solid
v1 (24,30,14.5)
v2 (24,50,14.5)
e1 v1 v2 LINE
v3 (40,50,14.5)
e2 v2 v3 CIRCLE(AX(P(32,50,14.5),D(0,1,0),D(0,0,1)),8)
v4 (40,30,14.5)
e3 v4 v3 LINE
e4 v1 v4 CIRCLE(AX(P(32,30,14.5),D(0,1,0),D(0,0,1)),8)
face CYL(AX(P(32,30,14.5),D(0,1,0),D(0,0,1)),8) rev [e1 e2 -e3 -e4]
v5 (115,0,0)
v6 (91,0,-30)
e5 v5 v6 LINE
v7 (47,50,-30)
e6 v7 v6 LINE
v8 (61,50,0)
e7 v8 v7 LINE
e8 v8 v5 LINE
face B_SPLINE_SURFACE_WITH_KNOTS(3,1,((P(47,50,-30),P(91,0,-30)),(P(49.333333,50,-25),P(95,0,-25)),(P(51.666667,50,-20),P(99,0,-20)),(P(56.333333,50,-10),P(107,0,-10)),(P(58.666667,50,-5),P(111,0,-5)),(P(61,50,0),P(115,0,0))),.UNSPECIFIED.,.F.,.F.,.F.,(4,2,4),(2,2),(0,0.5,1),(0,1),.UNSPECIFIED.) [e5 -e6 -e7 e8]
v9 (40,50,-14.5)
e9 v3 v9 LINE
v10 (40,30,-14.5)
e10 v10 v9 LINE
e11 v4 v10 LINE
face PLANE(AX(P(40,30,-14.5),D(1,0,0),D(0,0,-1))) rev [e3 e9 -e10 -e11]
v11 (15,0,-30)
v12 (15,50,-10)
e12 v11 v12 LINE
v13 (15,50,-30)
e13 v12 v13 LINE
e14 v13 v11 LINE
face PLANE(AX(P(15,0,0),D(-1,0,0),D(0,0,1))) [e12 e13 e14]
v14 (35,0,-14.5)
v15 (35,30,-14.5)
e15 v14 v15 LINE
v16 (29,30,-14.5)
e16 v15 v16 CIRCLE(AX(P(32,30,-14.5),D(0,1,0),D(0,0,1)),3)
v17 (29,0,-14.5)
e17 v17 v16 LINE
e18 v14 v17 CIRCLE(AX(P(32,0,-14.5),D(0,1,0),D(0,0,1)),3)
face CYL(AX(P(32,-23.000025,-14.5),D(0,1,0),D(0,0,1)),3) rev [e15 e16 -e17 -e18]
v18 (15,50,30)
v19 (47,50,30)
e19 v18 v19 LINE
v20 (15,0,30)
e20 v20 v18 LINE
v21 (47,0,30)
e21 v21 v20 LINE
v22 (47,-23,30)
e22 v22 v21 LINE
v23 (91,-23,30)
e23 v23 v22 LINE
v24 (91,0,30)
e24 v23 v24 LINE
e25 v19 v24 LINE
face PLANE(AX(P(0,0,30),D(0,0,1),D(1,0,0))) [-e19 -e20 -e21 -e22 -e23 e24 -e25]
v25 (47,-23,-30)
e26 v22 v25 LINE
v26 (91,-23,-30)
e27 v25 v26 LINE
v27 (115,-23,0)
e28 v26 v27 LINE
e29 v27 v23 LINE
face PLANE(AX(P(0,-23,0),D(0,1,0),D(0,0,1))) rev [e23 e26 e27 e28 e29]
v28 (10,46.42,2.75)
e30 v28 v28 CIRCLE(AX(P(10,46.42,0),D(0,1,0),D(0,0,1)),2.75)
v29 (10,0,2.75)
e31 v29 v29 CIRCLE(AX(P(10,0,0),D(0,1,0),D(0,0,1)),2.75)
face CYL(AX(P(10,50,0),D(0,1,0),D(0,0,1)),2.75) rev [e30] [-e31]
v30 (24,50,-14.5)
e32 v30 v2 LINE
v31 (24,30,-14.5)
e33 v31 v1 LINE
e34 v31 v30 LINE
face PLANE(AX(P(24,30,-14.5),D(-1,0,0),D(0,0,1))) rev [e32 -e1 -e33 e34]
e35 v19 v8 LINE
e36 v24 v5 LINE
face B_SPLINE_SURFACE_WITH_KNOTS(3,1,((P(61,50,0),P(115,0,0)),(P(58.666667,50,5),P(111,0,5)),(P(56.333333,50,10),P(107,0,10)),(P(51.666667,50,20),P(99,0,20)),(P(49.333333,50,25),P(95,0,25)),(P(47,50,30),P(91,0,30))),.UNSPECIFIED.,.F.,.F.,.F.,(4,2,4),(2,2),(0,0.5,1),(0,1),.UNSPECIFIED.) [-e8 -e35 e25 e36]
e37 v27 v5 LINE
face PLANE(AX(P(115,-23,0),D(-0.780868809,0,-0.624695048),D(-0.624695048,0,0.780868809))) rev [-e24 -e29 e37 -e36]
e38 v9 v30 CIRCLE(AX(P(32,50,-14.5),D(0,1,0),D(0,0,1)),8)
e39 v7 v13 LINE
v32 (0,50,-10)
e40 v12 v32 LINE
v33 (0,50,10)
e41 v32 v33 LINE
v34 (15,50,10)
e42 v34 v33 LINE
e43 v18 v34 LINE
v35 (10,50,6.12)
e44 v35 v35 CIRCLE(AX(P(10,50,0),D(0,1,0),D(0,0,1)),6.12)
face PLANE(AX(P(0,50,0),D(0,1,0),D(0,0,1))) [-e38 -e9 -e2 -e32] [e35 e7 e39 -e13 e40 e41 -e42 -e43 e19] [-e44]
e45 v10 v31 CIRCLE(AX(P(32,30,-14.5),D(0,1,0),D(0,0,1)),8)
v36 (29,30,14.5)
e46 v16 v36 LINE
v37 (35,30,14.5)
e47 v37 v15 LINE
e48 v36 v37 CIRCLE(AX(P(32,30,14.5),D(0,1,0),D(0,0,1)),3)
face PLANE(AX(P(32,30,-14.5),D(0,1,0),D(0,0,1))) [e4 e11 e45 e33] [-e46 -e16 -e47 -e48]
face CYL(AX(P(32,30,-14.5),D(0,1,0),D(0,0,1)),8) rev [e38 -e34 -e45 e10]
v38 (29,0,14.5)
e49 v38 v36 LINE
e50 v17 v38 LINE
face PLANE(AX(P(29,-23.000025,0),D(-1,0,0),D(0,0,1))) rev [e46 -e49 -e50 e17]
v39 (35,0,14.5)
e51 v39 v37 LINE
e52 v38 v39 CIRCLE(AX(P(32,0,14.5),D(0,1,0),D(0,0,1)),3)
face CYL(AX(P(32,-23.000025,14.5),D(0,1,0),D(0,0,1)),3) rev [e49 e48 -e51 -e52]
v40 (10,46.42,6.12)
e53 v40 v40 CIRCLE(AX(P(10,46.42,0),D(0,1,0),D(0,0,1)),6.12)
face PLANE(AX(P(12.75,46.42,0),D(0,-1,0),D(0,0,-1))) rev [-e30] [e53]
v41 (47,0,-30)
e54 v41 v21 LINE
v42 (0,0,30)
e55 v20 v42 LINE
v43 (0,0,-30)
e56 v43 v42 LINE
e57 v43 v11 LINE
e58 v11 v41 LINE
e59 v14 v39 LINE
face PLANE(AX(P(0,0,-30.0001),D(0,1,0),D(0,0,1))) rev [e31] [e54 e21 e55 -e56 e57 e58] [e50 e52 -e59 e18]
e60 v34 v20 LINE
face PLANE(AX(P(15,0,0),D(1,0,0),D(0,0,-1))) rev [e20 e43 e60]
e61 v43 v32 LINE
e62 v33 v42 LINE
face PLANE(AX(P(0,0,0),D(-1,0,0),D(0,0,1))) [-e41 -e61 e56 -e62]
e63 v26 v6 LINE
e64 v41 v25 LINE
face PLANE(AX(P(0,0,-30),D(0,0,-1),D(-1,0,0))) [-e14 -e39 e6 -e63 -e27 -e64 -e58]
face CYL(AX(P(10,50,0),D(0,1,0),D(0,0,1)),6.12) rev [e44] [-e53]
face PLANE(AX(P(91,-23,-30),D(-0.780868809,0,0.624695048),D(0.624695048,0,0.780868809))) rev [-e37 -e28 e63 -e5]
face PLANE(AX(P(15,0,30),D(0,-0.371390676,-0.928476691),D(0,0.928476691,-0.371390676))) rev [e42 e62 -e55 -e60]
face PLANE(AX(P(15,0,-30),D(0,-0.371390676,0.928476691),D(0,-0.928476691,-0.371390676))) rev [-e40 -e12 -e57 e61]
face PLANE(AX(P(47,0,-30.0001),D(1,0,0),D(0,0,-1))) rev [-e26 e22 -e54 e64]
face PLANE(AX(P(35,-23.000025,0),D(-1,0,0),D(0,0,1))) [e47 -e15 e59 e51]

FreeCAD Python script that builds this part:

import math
import FreeCAD as App
import Part
import Sketcher

V = App.Vector
Q = App.Units.Quantity


def add_polygon(sketch, points):
    """Adds a closed chain of lines whose ends are joined by coincident constraints."""
    first, n = sketch.GeometryCount, len(points)
    for a, b in zip(points, points[1:] + points[:1]):
        sketch.addGeometry(Part.LineSegment(App.Vector(*a, 0), App.Vector(*b, 0)), False)
    for i in range(n):
        sketch.addConstraint(Sketcher.Constraint("Coincident", first + i, 2, first + (i + 1) % n, 1))

doc = App.newDocument("Part")
body = doc.addObject("PartDesign::Body", "Body")

# Sketch on XZ plane
sketch1 = body.newObject("Sketcher::SketchObject", "Sketch")
sketch1.AttachmentSupport = (doc.getObject("XZ_Plane"), [""])
sketch1.MapMode = "FlatFace"
sketch1.AttachmentOffset = App.Placement(V(0, 0, -50), App.Rotation())
add_polygon(sketch1, [(0, -30), (0, 30), (47, 30), (61, 0), (47, -30)])  # lines 0-4
sketch1.addConstraint([
    Sketcher.Constraint("Vertical", 0),
    Sketcher.Constraint("Horizontal", 1),
    Sketcher.Constraint("Horizontal", 4),
    Sketcher.Constraint("Symmetric", 0, 2, 4, 2, -1, 1),
    Sketcher.Constraint("PointOnObject", 2, 2, -1),
    Sketcher.Constraint("Vertical", 1, 2, 3, 2),
    Sketcher.Constraint("DistanceX", 1, 1, 1, 2, Q("47 mm")),
    Sketcher.Constraint("DistanceY", 0, 1, 0, 2, Q("60 mm")),
    Sketcher.Constraint("DistanceX", -1, 1, 2, 2, Q("61 mm")),
])

# Sketch on XZ plane
sketch2 = body.newObject("Sketcher::SketchObject", "Sketch001")
sketch2.AttachmentSupport = (doc.getObject("XZ_Plane"), [""])
sketch2.MapMode = "FlatFace"
add_polygon(sketch2, [(0, -30), (0, 30), (91, 30), (115, 0), (91, -30)])  # lines 0-4
sketch2.addConstraint([
    Sketcher.Constraint("Vertical", 0),
    Sketcher.Constraint("Horizontal", 1),
    Sketcher.Constraint("Horizontal", 4),
    Sketcher.Constraint("Symmetric", 0, 2, 4, 2, -1, 1),
    Sketcher.Constraint("PointOnObject", 2, 2, -1),
    Sketcher.Constraint("Vertical", 1, 2, 3, 2),
    Sketcher.Constraint("DistanceX", 1, 1, 1, 2, Q("91 mm")),
    Sketcher.Constraint("DistanceY", 0, 1, 0, 2, Q("60 mm")),
    Sketcher.Constraint("DistanceX", -1, 1, 2, 2, Q("115 mm")),
])

additiveloft = body.newObject("PartDesign::AdditiveLoft", "AdditiveLoft")
additiveloft.Profile = sketch1
additiveloft.Sections = [sketch2]

# Sketch on XZ plane
sketch3 = body.newObject("Sketcher::SketchObject", "Sketch002")
sketch3.AttachmentSupport = (doc.getObject("XZ_Plane"), [""])
sketch3.MapMode = "FlatFace"
add_polygon(sketch3, [(91, 30), (0, 30), (0, -30), (91, -30), (115, 0)])  # lines 0-4
sketch3.addConstraint([
    Sketcher.Constraint("Horizontal", 0),
    Sketcher.Constraint("Vertical", 1),
    Sketcher.Constraint("Horizontal", 2),
    Sketcher.Constraint("Symmetric", 0, 2, 1, 2, -1, 1),
    Sketcher.Constraint("PointOnObject", 3, 2, -1),
    Sketcher.Constraint("Vertical", 2, 2, 4, 2),
    Sketcher.Constraint("DistanceX", 0, 2, 0, 1, Q("91 mm")),
    Sketcher.Constraint("DistanceY", 1, 2, 1, 1, Q("60 mm")),
    Sketcher.Constraint("DistanceX", -1, 1, 3, 2, Q("115 mm")),
])
pad1 = body.newObject("PartDesign::Pad", "Pad")
pad1.Profile = sketch3
pad1.Length = 23

# Sketch on XY plane
sketch4 = body.newObject("Sketcher::SketchObject", "Sketch003")
sketch4.AttachmentSupport = (doc.getObject("XY_Plane"), [""])
sketch4.MapMode = "FlatFace"
sketch4.AttachmentOffset = App.Placement(V(0, 0, 30), App.Rotation())
add_polygon(sketch4, [(0, 0), (0, -23), (47, -23), (47, 0)])  # lines 0-3
sketch4.addConstraint([
    Sketcher.Constraint("Vertical", 0),
    Sketcher.Constraint("Horizontal", 1),
    Sketcher.Constraint("Vertical", 2),
    Sketcher.Constraint("Horizontal", 3),
    Sketcher.Constraint("Coincident", 3, 2, -1, 1),
    Sketcher.Constraint("DistanceX", 1, 1, 1, 2, Q("47 mm")),
    Sketcher.Constraint("DistanceY", 0, 2, 0, 1, Q("23 mm")),
])
pocket1 = body.newObject("PartDesign::Pocket", "Pocket")
pocket1.Profile = sketch4
pocket1.Type = "ThroughAll"

# Sketch on YZ plane
sketch5 = body.newObject("Sketcher::SketchObject", "Sketch004")
sketch5.AttachmentSupport = (doc.getObject("YZ_Plane"), [""])
sketch5.MapMode = "FlatFace"
add_polygon(sketch5, [(50, 30), (50, 10), (0, 30)])  # lines 0-2
add_polygon(sketch5, [(50, -10), (50, -30), (0, -30)])  # lines 3-5
sketch5.addConstraint([
    Sketcher.Constraint("Vertical", 0),
    Sketcher.Constraint("Horizontal", 2),
    Sketcher.Constraint("Vertical", 3),
    Sketcher.Constraint("Horizontal", 4),
    Sketcher.Constraint("Symmetric", 1, 2, 4, 2, -1, 1),
    Sketcher.Constraint("Symmetric", 0, 2, 5, 2, -1),
    Sketcher.Constraint("PointOnObject", 1, 2, -2),
    Sketcher.Constraint("DistanceX", 2, 1, 2, 2, Q("50 mm")),
    Sketcher.Constraint("DistanceY", 0, 2, 0, 1, Q("20 mm")),
    Sketcher.Constraint("DistanceY", -1, 1, 0, 2, Q("10 mm")),
])
pocket2 = body.newObject("PartDesign::Pocket", "Pocket001")
pocket2.Profile = sketch5
pocket2.Length = 15
pocket2.Reversed = True

# Sketch on XZ plane
sketch6 = body.newObject("Sketcher::SketchObject", "Sketch005")
sketch6.AttachmentSupport = (doc.getObject("XZ_Plane"), [""])
sketch6.MapMode = "FlatFace"
sketch6.AttachmentOffset = App.Placement(V(0, 0, -50), App.Rotation())
sketch6.addGeometry([
    Part.LineSegment(V(40, 14.5, 0), V(40, -14.5, 0)),  # 0
    Part.ArcOfCircle(Part.Circle(V(32, -14.5, 0), V(0, 0, 1), 8), math.radians(180), math.radians(360)),  # 1
    Part.LineSegment(V(24, -14.5, 0), V(24, 14.5, 0)),  # 2
    Part.ArcOfCircle(Part.Circle(V(32, 14.5, 0), V(0, 0, 1), 8), math.radians(0), math.radians(180)),  # 3
    Part.LineSegment(V(35, -14.5, 0), V(35, 14.5, 0)),  # 4
    Part.ArcOfCircle(Part.Circle(V(32, 14.5, 0), V(0, 0, 1), 3), math.radians(0), math.radians(180)),  # 5
    Part.LineSegment(V(29, 14.5, 0), V(29, -14.5, 0)),  # 6
    Part.ArcOfCircle(Part.Circle(V(32, -14.5, 0), V(0, 0, 1), 3), math.radians(180), math.radians(360)),  # 7
], False)
sketch6.addConstraint([
    Sketcher.Constraint("Tangent", 0, 2, 1, 2),
    Sketcher.Constraint("Tangent", 1, 1, 2, 1),
    Sketcher.Constraint("Tangent", 2, 2, 3, 2),
    Sketcher.Constraint("Tangent", 3, 1, 0, 1),
    Sketcher.Constraint("Tangent", 4, 2, 5, 1),
    Sketcher.Constraint("Tangent", 5, 2, 6, 1),
    Sketcher.Constraint("Tangent", 6, 2, 7, 1),
    Sketcher.Constraint("Tangent", 7, 2, 4, 1),
    Sketcher.Constraint("Vertical", 0),
    Sketcher.Constraint("Vertical", 2),
    Sketcher.Constraint("Vertical", 4),
    Sketcher.Constraint("Vertical", 6),
    Sketcher.Constraint("Coincident", 5, 3, 3, 3),
    Sketcher.Constraint("Horizontal", 7, 3, 0, 2),
    Sketcher.Constraint("Radius", 1, Q("8 mm")),
    Sketcher.Constraint("Radius", 5, Q("3 mm")),
    Sketcher.Constraint("DistanceY", 0, 2, 0, 1, Q("29 mm")),
    Sketcher.Constraint("DistanceX", -1, 1, 1, 3, Q("32 mm")),
    Sketcher.Constraint("DistanceY", 1, 3, -1, 1, Q("14.5 mm")),
])
pocket3 = body.newObject("PartDesign::Pocket", "Pocket002")
pocket3.Profile = sketch6
pocket3.Length = 20
pocket3.Reversed = True

# Sketch on XZ plane
sketch7 = body.newObject("Sketcher::SketchObject", "Sketch006")
sketch7.AttachmentSupport = (doc.getObject("XZ_Plane"), [""])
sketch7.MapMode = "FlatFace"
sketch7.AttachmentOffset = App.Placement(V(0, 0, -50), App.Rotation())
sketch7.addGeometry([
    Part.LineSegment(V(29, -14.5, 0), V(29, 14.5, 0)),
    Part.ArcOfCircle(Part.Circle(V(32, 14.5, 0), V(0, 0, 1), 3), math.radians(0), math.radians(180)),
    Part.LineSegment(V(35, 14.5, 0), V(35, -14.5, 0)),
    Part.ArcOfCircle(Part.Circle(V(32, -14.5, 0), V(0, 0, 1), 3), math.radians(180), math.radians(360)),
], False)
sketch7.addConstraint([
    Sketcher.Constraint("Tangent", 0, 2, 1, 2),
    Sketcher.Constraint("Tangent", 1, 1, 2, 1),
    Sketcher.Constraint("Tangent", 2, 2, 3, 2),
    Sketcher.Constraint("Tangent", 3, 1, 0, 1),
    Sketcher.Constraint("Vertical", 0),
    Sketcher.Constraint("Vertical", 2),
    Sketcher.Constraint("Radius", 1, Q("3 mm")),
    Sketcher.Constraint("DistanceY", 0, 1, 0, 2, Q("29 mm")),
    Sketcher.Constraint("DistanceX", -1, 1, 1, 3, Q("32 mm")),
    Sketcher.Constraint("DistanceY", -1, 1, 1, 3, Q("14.5 mm")),
])
pocket4 = body.newObject("PartDesign::Pocket", "Pocket003")
pocket4.Profile = sketch7
pocket4.Type = "ThroughAll"
pocket4.Reversed = True

# Sketch on XZ plane
sketch8 = body.newObject("Sketcher::SketchObject", "Sketch007")
sketch8.AttachmentSupport = (doc.getObject("XZ_Plane"), [""])
sketch8.MapMode = "FlatFace"
sketch8.AttachmentOffset = App.Placement(V(0, 0, -50), App.Rotation())
sketch8.addGeometry(Part.Circle(V(10, 0, 0), V(0, 0, 1), 2.8), False)
sketch8.addConstraint([
    Sketcher.Constraint("PointOnObject", 0, 3, -1),
    Sketcher.Constraint("Diameter", 0, Q("5.5 mm")),
    Sketcher.Constraint("DistanceX", -1, 1, 0, 3, Q("10 mm")),
])
doc.recompute()
hole = body.newObject("PartDesign::Hole", "Hole")
hole.Profile = sketch8
hole.ThreadType = "None"
hole.Diameter = 5.5
hole.DepthType = "ThroughAll"
hole.HoleCutType = "Counterbore"
hole.HoleCutDiameter = 12.24
hole.HoleCutDepth = 3.58
hole.Reversed = True

doc.recompute()
